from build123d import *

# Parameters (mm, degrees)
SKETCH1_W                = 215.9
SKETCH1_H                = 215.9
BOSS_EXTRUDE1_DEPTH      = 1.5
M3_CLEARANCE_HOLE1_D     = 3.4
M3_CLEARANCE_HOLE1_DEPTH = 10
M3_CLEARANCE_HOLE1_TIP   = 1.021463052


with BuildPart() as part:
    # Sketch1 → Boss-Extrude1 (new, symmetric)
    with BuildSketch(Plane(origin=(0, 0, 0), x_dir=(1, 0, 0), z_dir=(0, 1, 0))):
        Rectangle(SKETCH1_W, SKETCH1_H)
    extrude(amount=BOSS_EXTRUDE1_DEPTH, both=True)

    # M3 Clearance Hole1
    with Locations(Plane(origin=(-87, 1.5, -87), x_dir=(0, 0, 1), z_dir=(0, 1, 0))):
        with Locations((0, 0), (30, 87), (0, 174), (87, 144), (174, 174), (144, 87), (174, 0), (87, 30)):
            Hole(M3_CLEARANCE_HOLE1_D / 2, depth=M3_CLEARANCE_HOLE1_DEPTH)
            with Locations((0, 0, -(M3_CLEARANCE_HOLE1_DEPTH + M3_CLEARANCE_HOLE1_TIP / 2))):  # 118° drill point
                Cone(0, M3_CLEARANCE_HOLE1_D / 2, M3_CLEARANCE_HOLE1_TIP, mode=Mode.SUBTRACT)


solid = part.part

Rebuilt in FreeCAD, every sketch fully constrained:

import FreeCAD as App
import Part
import Sketcher

V = App.Vector
Q = App.Units.Quantity


def add_polygon(sketch, points):
    """Adds a closed chain of lines whose ends are joined by coincident constraints."""
    first, n = sketch.GeometryCount, len(points)
    for a, b in zip(points, points[1:] + points[:1]):
        sketch.addGeometry(Part.LineSegment(App.Vector(*a, 0), App.Vector(*b, 0)), False)
    for i in range(n):
        sketch.addConstraint(Sketcher.Constraint("Coincident", first + i, 2, first + (i + 1) % n, 1))

doc = App.newDocument("Part")
body = doc.addObject("PartDesign::Body", "Body")

# Sketch on XZ plane
sketch1 = doc.addObject("Sketcher::SketchObject", "Sketch")
body.addObject(sketch1)
sketch1.AttachmentSupport = (doc.XZ_Plane, [""])
sketch1.MapMode = "FlatFace"
add_polygon(sketch1, [(-107.95, -107.95), (-107.95, 107.95), (107.95, 107.95), (107.95, -107.95)])  # lines 0-3
sketch1.addConstraint([
    Sketcher.Constraint("Vertical", 0),
    Sketcher.Constraint("Horizontal", 1),
    Sketcher.Constraint("Vertical", 2),
    Sketcher.Constraint("Horizontal", 3),
    Sketcher.Constraint("Symmetric", 0, 2, 2, 2, -1, 1),
    Sketcher.Constraint("Equal", 3, 0),
    Sketcher.Constraint("DistanceX", 1, 1, 1, 2, Q("215.9 mm")),
])
pad1 = doc.addObject("PartDesign::Pad", "Pad")
body.addObject(pad1)
pad1.Profile = sketch1
pad1.Length = 3
pad1.Midplane = True

# Sketch on XZ plane
sketch2 = doc.addObject("Sketcher::SketchObject", "Sketch001")
body.addObject(sketch2)
sketch2.AttachmentSupport = (doc.XZ_Plane, [""])
sketch2.MapMode = "FlatFace"
sketch2.AttachmentOffset = App.Placement(V(0, 0, -1.5), App.Rotation())
sketch2.addGeometry([
    Part.Circle(V(-87, -87, 0), V(0, 0, 1), 1.7),  # 0
    Part.Circle(V(0, -57, 0), V(0, 0, 1), 1.7),  # 1
    Part.Circle(V(87, -87, 0), V(0, 0, 1), 1.7),  # 2
    Part.Circle(V(57, 0, 0), V(0, 0, 1), 1.7),  # 3
    Part.Circle(V(87, 87, 0), V(0, 0, 1), 1.7),  # 4
    Part.Circle(V(0, 57, 0), V(0, 0, 1), 1.7),  # 5
    Part.Circle(V(-87, 87, 0), V(0, 0, 1), 1.7),  # 6
    Part.Circle(V(-57, 0, 0), V(0, 0, 1), 1.7),  # 7
], False)
sketch2.addConstraint([
    Sketcher.Constraint("Equal", 0, 1),
    Sketcher.Constraint("Equal", 1, 2),
    Sketcher.Constraint("Equal", 2, 3),
    Sketcher.Constraint("Equal", 3, 4),
    Sketcher.Constraint("Equal", 4, 5),
    Sketcher.Constraint("Equal", 5, 6),
    Sketcher.Constraint("Equal", 6, 7),
    Sketcher.Constraint("Symmetric", 0, 3, 4, 3, -1, 1),
    Sketcher.Constraint("Symmetric", 1, 3, 5, 3, -1, 1),
    Sketcher.Constraint("Symmetric", 2, 3, 6, 3, -1, 1),
    Sketcher.Constraint("Symmetric", 3, 3, 7, 3, -1, 1),
    Sketcher.Constraint("Symmetric", 0, 3, 2, 3, -2),
    Sketcher.Constraint("PointOnObject", 1, 3, -2),
    Sketcher.Constraint("PointOnObject", 3, 3, -1),
    Sketcher.Constraint("Diameter", 0, Q("3.4 mm")),
    Sketcher.Constraint("DistanceX", 0, 3, -1, 1, Q("87 mm")),
    Sketcher.Constraint("DistanceY", 0, 3, -1, 1, Q("87 mm")),
    Sketcher.Constraint("DistanceY", 1, 3, -1, 1, Q("57 mm")),
    Sketcher.Constraint("DistanceX", -1, 1, 3, 3, Q("57 mm")),
])
doc.recompute()
hole = doc.addObject("PartDesign::Hole", "Hole")
body.addObject(hole)
hole.Profile = sketch2
hole.ThreadType = "None"
hole.Diameter = 3.4
hole.DepthType = "Dimension"
hole.Depth = 10
hole.DrillPoint = "Angled"
hole.DrillPointAngle = 118
hole.Reversed = True

doc.recompute()
